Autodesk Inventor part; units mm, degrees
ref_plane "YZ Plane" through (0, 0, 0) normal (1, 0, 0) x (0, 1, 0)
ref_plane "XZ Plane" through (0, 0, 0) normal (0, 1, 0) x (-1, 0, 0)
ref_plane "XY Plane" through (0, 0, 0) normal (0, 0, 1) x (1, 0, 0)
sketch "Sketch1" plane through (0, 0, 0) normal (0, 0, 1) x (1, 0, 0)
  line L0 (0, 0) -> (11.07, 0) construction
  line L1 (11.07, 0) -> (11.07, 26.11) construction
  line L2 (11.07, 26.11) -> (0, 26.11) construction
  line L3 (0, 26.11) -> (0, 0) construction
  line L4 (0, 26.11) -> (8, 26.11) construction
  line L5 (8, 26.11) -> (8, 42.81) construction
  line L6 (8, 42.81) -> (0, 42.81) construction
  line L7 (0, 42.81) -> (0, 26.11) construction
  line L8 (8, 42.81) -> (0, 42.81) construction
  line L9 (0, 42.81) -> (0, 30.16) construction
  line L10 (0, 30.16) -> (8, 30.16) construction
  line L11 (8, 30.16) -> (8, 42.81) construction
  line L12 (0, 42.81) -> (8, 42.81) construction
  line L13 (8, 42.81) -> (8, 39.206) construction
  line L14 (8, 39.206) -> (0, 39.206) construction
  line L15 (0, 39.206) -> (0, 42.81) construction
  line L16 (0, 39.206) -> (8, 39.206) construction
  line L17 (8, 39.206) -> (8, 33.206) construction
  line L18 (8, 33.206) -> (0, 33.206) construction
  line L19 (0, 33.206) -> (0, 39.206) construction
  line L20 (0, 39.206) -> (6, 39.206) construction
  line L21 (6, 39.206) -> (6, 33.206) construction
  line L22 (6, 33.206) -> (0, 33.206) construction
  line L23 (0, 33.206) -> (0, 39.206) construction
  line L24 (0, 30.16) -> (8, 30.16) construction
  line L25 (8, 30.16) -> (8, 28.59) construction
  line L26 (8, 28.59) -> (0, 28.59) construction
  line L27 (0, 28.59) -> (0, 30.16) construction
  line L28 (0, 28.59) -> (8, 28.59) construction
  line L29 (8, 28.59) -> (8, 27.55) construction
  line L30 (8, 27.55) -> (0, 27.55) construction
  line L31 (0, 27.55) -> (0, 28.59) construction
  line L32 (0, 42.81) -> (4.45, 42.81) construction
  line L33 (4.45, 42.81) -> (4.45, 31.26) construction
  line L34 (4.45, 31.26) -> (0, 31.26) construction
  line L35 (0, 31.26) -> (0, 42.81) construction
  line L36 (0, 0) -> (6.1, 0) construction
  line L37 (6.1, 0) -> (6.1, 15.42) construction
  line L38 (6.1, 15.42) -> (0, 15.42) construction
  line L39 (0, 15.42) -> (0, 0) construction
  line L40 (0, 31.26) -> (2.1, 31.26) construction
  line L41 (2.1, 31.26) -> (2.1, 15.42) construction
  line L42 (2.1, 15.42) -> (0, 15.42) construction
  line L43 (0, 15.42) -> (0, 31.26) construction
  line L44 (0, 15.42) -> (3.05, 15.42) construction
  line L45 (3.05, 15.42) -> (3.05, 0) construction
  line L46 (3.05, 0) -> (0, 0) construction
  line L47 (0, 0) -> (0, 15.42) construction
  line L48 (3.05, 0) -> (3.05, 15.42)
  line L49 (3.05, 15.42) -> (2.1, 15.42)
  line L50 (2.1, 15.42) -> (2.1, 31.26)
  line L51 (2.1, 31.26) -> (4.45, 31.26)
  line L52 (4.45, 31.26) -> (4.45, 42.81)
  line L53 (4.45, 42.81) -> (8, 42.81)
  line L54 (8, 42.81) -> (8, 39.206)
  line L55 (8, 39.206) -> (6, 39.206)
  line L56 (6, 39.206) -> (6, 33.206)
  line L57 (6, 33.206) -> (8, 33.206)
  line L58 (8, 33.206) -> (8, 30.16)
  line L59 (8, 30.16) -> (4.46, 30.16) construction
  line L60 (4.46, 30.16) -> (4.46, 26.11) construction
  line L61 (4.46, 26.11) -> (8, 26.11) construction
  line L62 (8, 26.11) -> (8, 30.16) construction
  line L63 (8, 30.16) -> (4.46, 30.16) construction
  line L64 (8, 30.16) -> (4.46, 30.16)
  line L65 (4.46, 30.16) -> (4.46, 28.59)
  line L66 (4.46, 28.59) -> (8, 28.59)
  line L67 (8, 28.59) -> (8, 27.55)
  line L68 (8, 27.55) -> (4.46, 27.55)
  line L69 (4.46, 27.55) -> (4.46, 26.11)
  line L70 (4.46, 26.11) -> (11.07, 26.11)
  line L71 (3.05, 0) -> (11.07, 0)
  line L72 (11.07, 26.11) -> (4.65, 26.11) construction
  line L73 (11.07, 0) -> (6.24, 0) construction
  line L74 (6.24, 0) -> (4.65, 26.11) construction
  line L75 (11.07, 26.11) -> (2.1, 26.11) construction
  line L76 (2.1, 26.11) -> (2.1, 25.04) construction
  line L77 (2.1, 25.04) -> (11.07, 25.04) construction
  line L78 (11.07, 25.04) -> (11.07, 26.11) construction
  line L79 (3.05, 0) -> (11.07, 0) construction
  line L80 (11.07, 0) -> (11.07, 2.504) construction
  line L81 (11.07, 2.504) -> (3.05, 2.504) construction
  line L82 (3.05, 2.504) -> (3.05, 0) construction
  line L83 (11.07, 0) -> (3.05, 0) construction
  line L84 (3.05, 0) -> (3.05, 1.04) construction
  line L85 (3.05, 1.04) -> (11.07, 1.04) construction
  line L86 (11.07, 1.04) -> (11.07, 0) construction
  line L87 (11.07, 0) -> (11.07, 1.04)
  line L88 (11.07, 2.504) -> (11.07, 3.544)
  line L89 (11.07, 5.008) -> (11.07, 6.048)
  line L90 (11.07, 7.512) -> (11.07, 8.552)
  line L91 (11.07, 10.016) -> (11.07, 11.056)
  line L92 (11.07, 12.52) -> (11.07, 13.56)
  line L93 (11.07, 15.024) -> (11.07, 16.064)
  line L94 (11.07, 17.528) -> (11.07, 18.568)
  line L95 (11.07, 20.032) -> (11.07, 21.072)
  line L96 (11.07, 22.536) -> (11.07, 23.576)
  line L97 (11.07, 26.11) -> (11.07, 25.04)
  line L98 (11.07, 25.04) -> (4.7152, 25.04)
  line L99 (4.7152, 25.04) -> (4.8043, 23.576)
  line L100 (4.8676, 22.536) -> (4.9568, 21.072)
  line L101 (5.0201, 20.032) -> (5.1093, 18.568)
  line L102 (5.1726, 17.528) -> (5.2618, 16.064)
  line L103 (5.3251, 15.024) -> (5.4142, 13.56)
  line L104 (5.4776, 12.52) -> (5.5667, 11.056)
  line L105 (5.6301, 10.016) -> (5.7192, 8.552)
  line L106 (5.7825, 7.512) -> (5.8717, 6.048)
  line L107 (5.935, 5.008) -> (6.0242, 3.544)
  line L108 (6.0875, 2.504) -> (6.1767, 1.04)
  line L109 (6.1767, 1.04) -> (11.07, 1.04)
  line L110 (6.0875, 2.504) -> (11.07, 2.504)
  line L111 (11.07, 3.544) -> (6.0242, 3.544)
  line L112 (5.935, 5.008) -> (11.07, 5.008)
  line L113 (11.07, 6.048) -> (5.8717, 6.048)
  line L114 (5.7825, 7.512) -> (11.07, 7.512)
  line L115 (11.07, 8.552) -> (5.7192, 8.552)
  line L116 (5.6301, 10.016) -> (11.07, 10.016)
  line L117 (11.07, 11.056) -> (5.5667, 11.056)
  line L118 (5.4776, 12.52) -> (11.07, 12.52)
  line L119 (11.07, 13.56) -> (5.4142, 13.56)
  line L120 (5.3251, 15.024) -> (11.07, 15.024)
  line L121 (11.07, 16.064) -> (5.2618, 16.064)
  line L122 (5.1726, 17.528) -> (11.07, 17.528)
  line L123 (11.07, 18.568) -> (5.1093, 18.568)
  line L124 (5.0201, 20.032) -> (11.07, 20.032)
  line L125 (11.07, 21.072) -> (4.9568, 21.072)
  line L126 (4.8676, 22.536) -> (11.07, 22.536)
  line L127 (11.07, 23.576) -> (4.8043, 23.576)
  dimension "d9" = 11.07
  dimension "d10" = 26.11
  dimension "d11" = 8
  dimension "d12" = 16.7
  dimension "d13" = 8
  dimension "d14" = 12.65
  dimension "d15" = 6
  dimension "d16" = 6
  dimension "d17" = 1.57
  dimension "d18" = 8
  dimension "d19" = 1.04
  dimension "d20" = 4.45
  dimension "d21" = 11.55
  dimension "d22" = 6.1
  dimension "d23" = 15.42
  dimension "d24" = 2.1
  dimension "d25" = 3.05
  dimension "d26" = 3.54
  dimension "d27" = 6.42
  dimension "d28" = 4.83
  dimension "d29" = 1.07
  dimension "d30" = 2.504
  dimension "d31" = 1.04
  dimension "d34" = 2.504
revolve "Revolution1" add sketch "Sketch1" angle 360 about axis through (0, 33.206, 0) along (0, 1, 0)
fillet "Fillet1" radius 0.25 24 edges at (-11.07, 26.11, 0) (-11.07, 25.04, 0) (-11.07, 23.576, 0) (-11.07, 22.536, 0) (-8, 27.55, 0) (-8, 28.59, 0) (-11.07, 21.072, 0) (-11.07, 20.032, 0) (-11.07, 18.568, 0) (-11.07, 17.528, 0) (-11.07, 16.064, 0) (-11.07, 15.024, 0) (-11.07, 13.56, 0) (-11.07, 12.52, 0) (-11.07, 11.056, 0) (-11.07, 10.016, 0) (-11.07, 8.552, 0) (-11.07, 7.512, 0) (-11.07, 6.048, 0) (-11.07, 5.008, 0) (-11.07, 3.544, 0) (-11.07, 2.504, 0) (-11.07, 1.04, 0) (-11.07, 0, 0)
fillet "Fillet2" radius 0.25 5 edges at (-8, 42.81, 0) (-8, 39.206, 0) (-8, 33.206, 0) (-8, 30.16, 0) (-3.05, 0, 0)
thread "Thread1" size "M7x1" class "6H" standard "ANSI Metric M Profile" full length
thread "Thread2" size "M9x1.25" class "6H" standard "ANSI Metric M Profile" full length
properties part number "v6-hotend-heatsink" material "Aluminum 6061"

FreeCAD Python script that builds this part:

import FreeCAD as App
import Part
import Sketcher
Q = App.Units.Quantity


def edges_at(feature, points):
    """Names of the edges that pass closest to the given points."""
    edges = feature.Shape.Edges
    near = lambda p: min(range(len(edges)), key=lambda i: edges[i].distToShape(Part.Vertex(*p))[0])
    return sorted({f"Edge{near(p) + 1}" for p in points})


def add_polygon(sketch, points):
    """Adds a closed chain of lines whose ends are joined by coincident constraints."""
    first, n = sketch.GeometryCount, len(points)
    for a, b in zip(points, points[1:] + points[:1]):
        sketch.addGeometry(Part.LineSegment(App.Vector(*a, 0), App.Vector(*b, 0)), False)
    for i in range(n):
        sketch.addConstraint(Sketcher.Constraint("Coincident", first + i, 2, first + (i + 1) % n, 1))

doc = App.newDocument("Part")
body = doc.addObject("PartDesign::Body", "Body")

sketch1 = body.newObject("Sketcher::SketchObject", "Sketch")
sketch1.AttachmentSupport = (doc.getObject("XY_Plane"), [""])
sketch1.MapMode = "FlatFace"
add_polygon(sketch1, [(3.05, 15.42), (3.05, 0), (11.07, 0), (11.07, 1.04), (6.1767, 1.04), (6.0875, 2.504), (11.07, 2.504), (11.07, 3.544), (6.0242, 3.544), (5.935, 5.008), (11.07, 5.008), (11.07, 6.048), (5.8717, 6.048), (5.7825, 7.512), (11.07, 7.512), (11.07, 8.552), (5.7192, 8.552), (5.6301, 10.016), (11.07, 10.016), (11.07, 11.056), (5.5667, 11.056), (5.4776, 12.52), (11.07, 12.52), (11.07, 13.56), (5.4142, 13.56), (5.3251, 15.024), (11.07, 15.024), (11.07, 16.064), (5.2618, 16.064), (5.1726, 17.528), (11.07, 17.528), (11.07, 18.568), (5.1093, 18.568), (5.0201, 20.032), (11.07, 20.032), (11.07, 21.072), (4.9568, 21.072), (4.8676, 22.536), (11.07, 22.536), (11.07, 23.576), (4.8043, 23.576), (4.7152, 25.04), (11.07, 25.04), (11.07, 26.11), (4.46, 26.11), (4.46, 27.55), (8, 27.55), (8, 28.59), (4.46, 28.59), (4.46, 30.16), (8, 30.16), (8, 33.206), (6, 33.206), (6, 39.206), (8, 39.206), (8, 42.81), (4.45, 42.81), (4.45, 31.26), (2.1, 31.26), (2.1, 15.42)])
sketch1.addConstraint(Sketcher.Constraint("Vertical", 0))
sketch1.addConstraint(Sketcher.Constraint("Horizontal", 1))
sketch1.addConstraint(Sketcher.Constraint("Vertical", 2))
sketch1.addConstraint(Sketcher.Constraint("Horizontal", 3))
sketch1.addConstraint(Sketcher.Constraint("Horizontal", 5))
sketch1.addConstraint(Sketcher.Constraint("Vertical", 6))
sketch1.addConstraint(Sketcher.Constraint("Horizontal", 7))
sketch1.addConstraint(Sketcher.Constraint("Horizontal", 9))
sketch1.addConstraint(Sketcher.Constraint("Vertical", 10))
sketch1.addConstraint(Sketcher.Constraint("Horizontal", 11))
sketch1.addConstraint(Sketcher.Constraint("Horizontal", 13))
sketch1.addConstraint(Sketcher.Constraint("Vertical", 14))
sketch1.addConstraint(Sketcher.Constraint("Horizontal", 15))
sketch1.addConstraint(Sketcher.Constraint("Horizontal", 17))
sketch1.addConstraint(Sketcher.Constraint("Vertical", 18))
sketch1.addConstraint(Sketcher.Constraint("Horizontal", 19))
sketch1.addConstraint(Sketcher.Constraint("Horizontal", 21))
sketch1.addConstraint(Sketcher.Constraint("Vertical", 22))
sketch1.addConstraint(Sketcher.Constraint("Horizontal", 23))
sketch1.addConstraint(Sketcher.Constraint("Horizontal", 25))
sketch1.addConstraint(Sketcher.Constraint("Vertical", 26))
sketch1.addConstraint(Sketcher.Constraint("Horizontal", 27))
sketch1.addConstraint(Sketcher.Constraint("Horizontal", 29))
sketch1.addConstraint(Sketcher.Constraint("Vertical", 30))
sketch1.addConstraint(Sketcher.Constraint("Horizontal", 31))
sketch1.addConstraint(Sketcher.Constraint("Horizontal", 33))
sketch1.addConstraint(Sketcher.Constraint("Vertical", 34))
sketch1.addConstraint(Sketcher.Constraint("Horizontal", 35))
sketch1.addConstraint(Sketcher.Constraint("Horizontal", 37))
sketch1.addConstraint(Sketcher.Constraint("Vertical", 38))
sketch1.addConstraint(Sketcher.Constraint("Horizontal", 39))
sketch1.addConstraint(Sketcher.Constraint("Horizontal", 41))
sketch1.addConstraint(Sketcher.Constraint("Vertical", 42))
sketch1.addConstraint(Sketcher.Constraint("Horizontal", 43))
sketch1.addConstraint(Sketcher.Constraint("Vertical", 44))
sketch1.addConstraint(Sketcher.Constraint("Horizontal", 45))
sketch1.addConstraint(Sketcher.Constraint("Vertical", 46))
sketch1.addConstraint(Sketcher.Constraint("Horizontal", 47))
sketch1.addConstraint(Sketcher.Constraint("Vertical", 48))
sketch1.addConstraint(Sketcher.Constraint("Horizontal", 49))
sketch1.addConstraint(Sketcher.Constraint("Vertical", 50))
sketch1.addConstraint(Sketcher.Constraint("Horizontal", 51))
sketch1.addConstraint(Sketcher.Constraint("Vertical", 52))
sketch1.addConstraint(Sketcher.Constraint("Horizontal", 53))
sketch1.addConstraint(Sketcher.Constraint("Vertical", 54))
sketch1.addConstraint(Sketcher.Constraint("Horizontal", 55))
sketch1.addConstraint(Sketcher.Constraint("Vertical", 56))
sketch1.addConstraint(Sketcher.Constraint("Horizontal", 57))
sketch1.addConstraint(Sketcher.Constraint("Vertical", 58))
sketch1.addConstraint(Sketcher.Constraint("Horizontal", 59))
sketch1.addConstraint(Sketcher.Constraint("PointOnObject", 0, 2, -1))
sketch1.addConstraint(Sketcher.Constraint("Parallel", 4, 8))
sketch1.addConstraint(Sketcher.Constraint("Parallel", 8, 12))
sketch1.addConstraint(Sketcher.Constraint("Parallel", 12, 16))
sketch1.addConstraint(Sketcher.Constraint("Parallel", 16, 20))
sketch1.addConstraint(Sketcher.Constraint("Parallel", 20, 24))
sketch1.addConstraint(Sketcher.Constraint("Parallel", 24, 28))
sketch1.addConstraint(Sketcher.Constraint("Parallel", 28, 32))
sketch1.addConstraint(Sketcher.Constraint("Parallel", 32, 36))
sketch1.addConstraint(Sketcher.Constraint("Parallel", 36, 40))
sketch1.addConstraint(Sketcher.Constraint("Vertical", 2, 2, 5, 2))
sketch1.addConstraint(Sketcher.Constraint("Vertical", 6, 2, 9, 2))
sketch1.addConstraint(Sketcher.Constraint("Vertical", 10, 2, 13, 2))
sketch1.addConstraint(Sketcher.Constraint("Vertical", 14, 2, 17, 2))
sketch1.addConstraint(Sketcher.Constraint("Vertical", 18, 2, 21, 2))
sketch1.addConstraint(Sketcher.Constraint("Vertical", 22, 2, 25, 2))
sketch1.addConstraint(Sketcher.Constraint("Vertical", 26, 2, 29, 2))
sketch1.addConstraint(Sketcher.Constraint("Vertical", 30, 2, 33, 2))
sketch1.addConstraint(Sketcher.Constraint("Vertical", 34, 2, 37, 2))
sketch1.addConstraint(Sketcher.Constraint("Vertical", 38, 2, 41, 2))
sketch1.addConstraint(Sketcher.Constraint("Vertical", 44, 2, 47, 2))
sketch1.addConstraint(Sketcher.Constraint("Vertical", 46, 2, 49, 2))
sketch1.addConstraint(Sketcher.Constraint("Vertical", 50, 2, 53, 2))
sketch1.addConstraint(Sketcher.Constraint("Equal", 2, 6))
sketch1.addConstraint(Sketcher.Constraint("Equal", 6, 10))
sketch1.addConstraint(Sketcher.Constraint("Equal", 10, 14))
sketch1.addConstraint(Sketcher.Constraint("Equal", 14, 18))
sketch1.addConstraint(Sketcher.Constraint("Equal", 18, 22))
sketch1.addConstraint(Sketcher.Constraint("Equal", 22, 26))
sketch1.addConstraint(Sketcher.Constraint("Equal", 26, 30))
sketch1.addConstraint(Sketcher.Constraint("Equal", 30, 34))
sketch1.addConstraint(Sketcher.Constraint("Equal", 34, 38))
sketch1.addConstraint(Sketcher.Constraint("Equal", 38, 46))
sketch1.addConstraint(Sketcher.Constraint("Equal", 4, 8))
sketch1.addConstraint(Sketcher.Constraint("Equal", 8, 12))
sketch1.addConstraint(Sketcher.Constraint("Equal", 12, 16))
sketch1.addConstraint(Sketcher.Constraint("Equal", 16, 20))
sketch1.addConstraint(Sketcher.Constraint("Equal", 20, 24))
sketch1.addConstraint(Sketcher.Constraint("Equal", 24, 28))
sketch1.addConstraint(Sketcher.Constraint("Equal", 28, 32))
sketch1.addConstraint(Sketcher.Constraint("Equal", 32, 36))
sketch1.addConstraint(Sketcher.Constraint("Equal", 36, 40))
sketch1.addConstraint(Sketcher.Constraint("DistanceY", 52, 1, 52, 2, Q("6 mm")))
sketch1.addConstraint(Sketcher.Constraint("DistanceX", -1, 1, 45, 2, Q("8 mm")))
sketch1.addConstraint(Sketcher.Constraint("DistanceX", -1, 1, 51, 2, Q("6 mm")))
sketch1.addConstraint(Sketcher.Constraint("DistanceX", 45, 1, 45, 2, Q("3.54 mm")))
sketch1.addConstraint(Sketcher.Constraint("DistanceY", 0, 2, 0, 1, Q("15.42 mm")))
sketch1.addConstraint(Sketcher.Constraint("DistanceY", 2, 1, 2, 2, Q("1.04 mm")))
sketch1.addConstraint(Sketcher.Constraint("DistanceY", 42, 1, 42, 2, Q("1.07 mm")))
sketch1.addConstraint(Sketcher.Constraint("DistanceY", 48, 1, 48, 2, Q("1.57 mm")))
sketch1.addConstraint(Sketcher.Constraint("DistanceY", 56, 2, 56, 1, Q("11.55 mm")))
sketch1.addConstraint(Sketcher.Constraint("DistanceX", -1, 1, 57, 2, Q("2.1 mm")))
sketch1.addConstraint(Sketcher.Constraint("DistanceX", -1, 1, 0, 2, Q("3.05 mm")))
sketch1.addConstraint(Sketcher.Constraint("DistanceX", -1, 1, 1, 2, Q("11.07 mm")))
sketch1.addConstraint(Sketcher.Constraint("DistanceY", -1, 1, 42, 2, Q("26.11 mm")))
sketch1.addConstraint(Sketcher.Constraint("DistanceX", -1, 1, 55, 2, Q("4.45 mm")))
sketch1.addConstraint(Sketcher.Constraint("DistanceY", 49, 2, 54, 2, Q("12.65 mm")))
sketch1.addConstraint(Sketcher.Constraint("DistanceX", 17, 1, 17, 2, Q("5.44 mm")))
sketch1.addConstraint(Sketcher.Constraint("DistanceX", 33, 1, 33, 2, Q("6.05 mm")))
sketch1.addConstraint(Sketcher.Constraint("DistanceY", 44, 1, 44, 2, Q("1.44 mm")))
sketch1.addConstraint(Sketcher.Constraint("DistanceX", 9, 1, 9, 2, Q("5.135 mm")))
sketch1.addConstraint(Sketcher.Constraint("DistanceX", 25, 1, 25, 2, Q("5.745 mm")))
sketch1.addConstraint(Sketcher.Constraint("DistanceY", 50, 1, 50, 2, Q("3.046 mm")))
sketch1.addConstraint(Sketcher.Constraint("DistanceX", 3, 2, 3, 1, Q("4.8933 mm")))
sketch1.addConstraint(Sketcher.Constraint("DistanceX", 5, 1, 5, 2, Q("4.9825 mm")))
sketch1.addConstraint(Sketcher.Constraint("DistanceX", 11, 2, 11, 1, Q("5.1983 mm")))
sketch1.addConstraint(Sketcher.Constraint("DistanceX", 19, 2, 19, 1, Q("5.5033 mm")))
sketch1.addConstraint(Sketcher.Constraint("DistanceX", 27, 2, 27, 1, Q("5.8082 mm")))
sketch1.addConstraint(Sketcher.Constraint("DistanceX", 35, 2, 35, 1, Q("6.1132 mm")))
sketch1.addConstraint(Sketcher.Constraint("DistanceX", 39, 2, 39, 1, Q("6.2657 mm")))
revolution = body.newObject("PartDesign::Revolution", "Revolution")
revolution.Profile = sketch1
revolution.ReferenceAxis = (sketch1, ["V_Axis"])
revolution.Angle = 360
doc.recompute()

fillet = body.newObject("PartDesign::Fillet", "Fillet")
fillet.Base = (revolution, edges_at(revolution, [
    (-11.07, 26.11, 0),
    (-11.07, 25.04, 0),
    (-11.07, 23.576, 0),
    (-11.07, 22.536, 0),
    (-8, 27.55, 0),
    (-8, 28.59, 0),
    (-11.07, 21.072, 0),
    (-11.07, 20.032, 0),
    (-11.07, 18.568, 0),
    (-11.07, 17.528, 0),
    (-11.07, 16.064, 0),
    (-11.07, 15.024, 0),
    (-11.07, 13.56, 0),
    (-11.07, 12.52, 0),
    (-11.07, 11.056, 0),
    (-11.07, 10.016, 0),
    (-11.07, 8.552, 0),
    (-11.07, 7.512, 0),
    (-11.07, 6.048, 0),
    (-11.07, 5.008, 0),
    (-11.07, 3.544, 0),
    (-11.07, 2.504, 0),
    (-11.07, 1.04, 0),
    (-11.07, 0, 0),
]))
fillet.Radius = 0.25
doc.recompute()

fillet2 = body.newObject("PartDesign::Fillet", "Fillet001")
fillet2.Base = (fillet, edges_at(fillet, [
    (-8, 42.81, 0),
    (-8, 39.206, 0),
    (-8, 33.206, 0),
    (-8, 30.16, 0),
    (-3.05, 0, 0),
]))
fillet2.Radius = 0.25

doc.recompute()
